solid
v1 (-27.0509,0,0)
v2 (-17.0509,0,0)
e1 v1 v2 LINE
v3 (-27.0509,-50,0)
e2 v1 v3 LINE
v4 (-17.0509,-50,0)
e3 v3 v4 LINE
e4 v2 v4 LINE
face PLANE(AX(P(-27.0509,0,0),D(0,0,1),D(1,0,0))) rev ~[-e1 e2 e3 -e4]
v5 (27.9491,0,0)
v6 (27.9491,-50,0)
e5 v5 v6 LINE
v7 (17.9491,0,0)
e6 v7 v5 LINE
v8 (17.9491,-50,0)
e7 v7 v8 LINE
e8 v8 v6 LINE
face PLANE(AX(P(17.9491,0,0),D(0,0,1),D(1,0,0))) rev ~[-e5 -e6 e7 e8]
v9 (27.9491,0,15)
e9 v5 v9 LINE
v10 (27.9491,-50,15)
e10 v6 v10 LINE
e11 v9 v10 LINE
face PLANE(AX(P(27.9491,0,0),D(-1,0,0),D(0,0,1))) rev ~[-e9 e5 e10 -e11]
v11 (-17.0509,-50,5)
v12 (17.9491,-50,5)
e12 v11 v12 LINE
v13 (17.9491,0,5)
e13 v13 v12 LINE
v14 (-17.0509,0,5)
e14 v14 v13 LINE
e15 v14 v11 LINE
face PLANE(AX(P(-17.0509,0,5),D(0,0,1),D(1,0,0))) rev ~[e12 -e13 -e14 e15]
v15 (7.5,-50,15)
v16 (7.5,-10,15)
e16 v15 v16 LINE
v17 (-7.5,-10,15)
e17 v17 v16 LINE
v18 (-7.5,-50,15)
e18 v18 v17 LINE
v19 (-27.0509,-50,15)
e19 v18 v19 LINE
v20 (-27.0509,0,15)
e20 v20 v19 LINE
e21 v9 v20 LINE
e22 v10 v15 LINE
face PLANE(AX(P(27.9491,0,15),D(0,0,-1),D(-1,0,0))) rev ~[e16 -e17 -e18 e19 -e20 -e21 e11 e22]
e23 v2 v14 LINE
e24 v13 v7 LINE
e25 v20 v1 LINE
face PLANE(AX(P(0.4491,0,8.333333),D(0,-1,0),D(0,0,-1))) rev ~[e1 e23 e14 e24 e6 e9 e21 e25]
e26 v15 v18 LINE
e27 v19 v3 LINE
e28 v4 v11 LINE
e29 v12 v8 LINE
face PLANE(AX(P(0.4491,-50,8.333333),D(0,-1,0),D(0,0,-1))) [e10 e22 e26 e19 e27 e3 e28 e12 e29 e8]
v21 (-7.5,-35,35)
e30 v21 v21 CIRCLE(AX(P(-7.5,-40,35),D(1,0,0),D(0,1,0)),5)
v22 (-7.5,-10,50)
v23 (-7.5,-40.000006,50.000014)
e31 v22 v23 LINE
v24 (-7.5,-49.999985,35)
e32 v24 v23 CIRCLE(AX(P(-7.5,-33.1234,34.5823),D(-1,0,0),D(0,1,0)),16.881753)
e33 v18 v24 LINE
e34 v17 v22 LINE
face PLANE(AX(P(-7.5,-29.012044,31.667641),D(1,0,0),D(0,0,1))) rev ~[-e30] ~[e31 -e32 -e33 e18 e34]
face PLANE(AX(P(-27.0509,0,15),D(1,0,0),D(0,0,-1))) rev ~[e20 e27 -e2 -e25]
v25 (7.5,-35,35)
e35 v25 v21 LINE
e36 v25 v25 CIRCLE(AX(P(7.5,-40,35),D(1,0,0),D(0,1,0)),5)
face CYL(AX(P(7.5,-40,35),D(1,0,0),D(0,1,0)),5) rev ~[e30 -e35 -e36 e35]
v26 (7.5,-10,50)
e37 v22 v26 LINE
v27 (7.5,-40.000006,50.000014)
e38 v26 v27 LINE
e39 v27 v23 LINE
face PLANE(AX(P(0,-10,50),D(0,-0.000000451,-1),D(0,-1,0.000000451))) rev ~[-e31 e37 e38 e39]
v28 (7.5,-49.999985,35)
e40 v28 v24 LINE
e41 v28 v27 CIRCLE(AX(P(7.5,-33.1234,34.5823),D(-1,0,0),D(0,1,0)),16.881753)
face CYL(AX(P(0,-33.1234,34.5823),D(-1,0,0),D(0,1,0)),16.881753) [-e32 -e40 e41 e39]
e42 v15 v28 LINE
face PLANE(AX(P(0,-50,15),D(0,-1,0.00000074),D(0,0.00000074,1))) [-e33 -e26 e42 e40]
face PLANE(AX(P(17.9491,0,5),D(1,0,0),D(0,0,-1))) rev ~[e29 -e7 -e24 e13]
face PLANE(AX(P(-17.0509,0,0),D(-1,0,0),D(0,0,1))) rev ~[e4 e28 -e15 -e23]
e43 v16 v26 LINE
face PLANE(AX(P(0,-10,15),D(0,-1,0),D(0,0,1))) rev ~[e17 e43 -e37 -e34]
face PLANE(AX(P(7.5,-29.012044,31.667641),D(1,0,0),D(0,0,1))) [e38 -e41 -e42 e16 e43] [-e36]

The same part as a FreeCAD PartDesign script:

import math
import FreeCAD as App
import Part
import Sketcher
Q = App.Units.Quantity

doc = App.newDocument("Part")
body = doc.addObject("PartDesign::Body", "Body")

sketch1 = doc.addObject("Sketcher::SketchObject", "Sketch")
body.addObject(sketch1)
sketch1.AttachmentSupport = (doc.XZ_Plane, [""])
sketch1.MapMode = "FlatFace"
sketch1.addGeometry(Part.LineSegment(App.Vector(-27, 0, 0), App.Vector(-17, 0, 0)), False)
sketch1.addGeometry(Part.LineSegment(App.Vector(-17, 0, 0), App.Vector(-17, 5, 0)), False)
sketch1.addGeometry(Part.LineSegment(App.Vector(-17, 5, 0), App.Vector(18, 5, 0)), False)
sketch1.addGeometry(Part.LineSegment(App.Vector(18, 5, 0), App.Vector(18, 0, 0)), False)
sketch1.addGeometry(Part.LineSegment(App.Vector(18, 0, 0), App.Vector(28, 0, 0)), False)
sketch1.addGeometry(Part.LineSegment(App.Vector(28, 0, 0), App.Vector(28, 15, 0)), False)
sketch1.addGeometry(Part.LineSegment(App.Vector(28, 15, 0), App.Vector(-27, 15, 0)), False)
sketch1.addGeometry(Part.LineSegment(App.Vector(-27, 15, 0), App.Vector(-27, 0, 0)), False)
sketch1.addConstraint(Sketcher.Constraint("Coincident", 0, 2, 1, 1))
sketch1.addConstraint(Sketcher.Constraint("Coincident", 1, 2, 2, 1))
sketch1.addConstraint(Sketcher.Constraint("Coincident", 2, 2, 3, 1))
sketch1.addConstraint(Sketcher.Constraint("Coincident", 3, 2, 4, 1))
sketch1.addConstraint(Sketcher.Constraint("Coincident", 4, 2, 5, 1))
sketch1.addConstraint(Sketcher.Constraint("Coincident", 5, 2, 6, 1))
sketch1.addConstraint(Sketcher.Constraint("Coincident", 6, 2, 7, 1))
sketch1.addConstraint(Sketcher.Constraint("Coincident", 7, 2, 0, 1))
sketch1.addConstraint(Sketcher.Constraint("Horizontal", 0))
sketch1.addConstraint(Sketcher.Constraint("Vertical", 1))
sketch1.addConstraint(Sketcher.Constraint("Horizontal", 2))
sketch1.addConstraint(Sketcher.Constraint("Vertical", 3))
sketch1.addConstraint(Sketcher.Constraint("Horizontal", 4))
sketch1.addConstraint(Sketcher.Constraint("Vertical", 5))
sketch1.addConstraint(Sketcher.Constraint("Horizontal", 6))
sketch1.addConstraint(Sketcher.Constraint("Vertical", 7))
sketch1.addConstraint(Sketcher.Constraint("PointOnObject", 0, 2, -1))
sketch1.addConstraint(Sketcher.Constraint("PointOnObject", 3, 2, -1))
sketch1.addConstraint(Sketcher.Constraint("Equal", 0, 4))
sketch1.addConstraint(Sketcher.Constraint("DistanceX", 0, 1, 0, 2, Q("10 mm")))
sketch1.addConstraint(Sketcher.Constraint("DistanceX", 2, 1, 2, 2, Q("35 mm")))
sketch1.addConstraint(Sketcher.Constraint("DistanceY", 1, 1, 1, 2, Q("5 mm")))
sketch1.addConstraint(Sketcher.Constraint("DistanceY", 5, 1, 5, 2, Q("15 mm")))
sketch1.addConstraint(Sketcher.Constraint("DistanceX", 0, 2, -1, 1, Q("17.051 mm")))
pad1 = doc.addObject("PartDesign::Pad", "Pad")
body.addObject(pad1)
pad1.Profile = sketch1
pad1.Length = 50

sketch2 = doc.addObject("Sketcher::SketchObject", "Sketch001")
body.addObject(sketch2)
sketch2.AttachmentSupport = (doc.YZ_Plane, [""])
sketch2.MapMode = "FlatFace"
sketch2.addGeometry(Part.LineSegment(App.Vector(-50, 35, 0), App.Vector(-50, 15, 0)), False)
sketch2.addGeometry(Part.LineSegment(App.Vector(-50, 15, 0), App.Vector(-10, 15, 0)), False)
sketch2.addGeometry(Part.LineSegment(App.Vector(-10, 15, 0), App.Vector(-10, 50, 0)), False)
sketch2.addGeometry(Part.LineSegment(App.Vector(-10, 50, 0), App.Vector(-40, 50, 0)), False)
sketch2.addGeometry(Part.ArcOfCircle(Part.Circle(App.Vector(-33, 35, 0), App.Vector(0, 0, 1), 17), math.radians(114), math.radians(179)), False)
sketch2.addConstraint(Sketcher.Constraint("Coincident", 0, 2, 1, 1))
sketch2.addConstraint(Sketcher.Constraint("Coincident", 1, 2, 2, 1))
sketch2.addConstraint(Sketcher.Constraint("Coincident", 2, 2, 3, 1))
sketch2.addConstraint(Sketcher.Constraint("Coincident", 3, 2, 4, 1))
sketch2.addConstraint(Sketcher.Constraint("Coincident", 4, 2, 0, 1))
sketch2.addConstraint(Sketcher.Constraint("Vertical", 0))
sketch2.addConstraint(Sketcher.Constraint("Horizontal", 1))
sketch2.addConstraint(Sketcher.Constraint("Vertical", 2))
sketch2.addConstraint(Sketcher.Constraint("Horizontal", 3))
sketch2.addConstraint(Sketcher.Constraint("DistanceX", 1, 1, 1, 2, Q("40 mm")))
sketch2.addConstraint(Sketcher.Constraint("DistanceX", 3, 2, 3, 1, Q("30 mm")))
sketch2.addConstraint(Sketcher.Constraint("DistanceY", 0, 2, 0, 1, Q("20 mm")))
sketch2.addConstraint(Sketcher.Constraint("DistanceY", 2, 1, 2, 2, Q("35 mm")))
sketch2.addConstraint(Sketcher.Constraint("DistanceX", 0, 2, -1, 1, Q("50 mm")))
sketch2.addConstraint(Sketcher.Constraint("DistanceY", -1, 1, 0, 2, Q("15 mm")))
sketch2.addConstraint(Sketcher.Constraint("Radius", 4, Q("16.8818 mm")))
pad2 = doc.addObject("PartDesign::Pad", "Pad001")
body.addObject(pad2)
pad2.Profile = sketch2
pad2.Length = 15
pad2.Midplane = True

sketch3 = doc.addObject("Sketcher::SketchObject", "Sketch002")
body.addObject(sketch3)
sketch3.AttachmentSupport = (doc.YZ_Plane, [""])
sketch3.MapMode = "FlatFace"
sketch3.AttachmentOffset = App.Placement(App.Vector(0, 0, 7.5), App.Rotation())
sketch3.addGeometry(Part.Circle(App.Vector(-40, 35, 0), App.Vector(0, 0, 1), 5), False)
sketch3.addConstraint(Sketcher.Constraint("Diameter", 0, Q("10 mm")))
sketch3.addConstraint(Sketcher.Constraint("DistanceX", 0, 3, -1, 1, Q("40 mm")))
sketch3.addConstraint(Sketcher.Constraint("DistanceY", -1, 1, 0, 3, Q("35 mm")))
pocket1 = doc.addObject("PartDesign::Pocket", "Pocket")
body.addObject(pocket1)
pocket1.Profile = sketch3
pocket1.Length = 55.8479

doc.recompute()
